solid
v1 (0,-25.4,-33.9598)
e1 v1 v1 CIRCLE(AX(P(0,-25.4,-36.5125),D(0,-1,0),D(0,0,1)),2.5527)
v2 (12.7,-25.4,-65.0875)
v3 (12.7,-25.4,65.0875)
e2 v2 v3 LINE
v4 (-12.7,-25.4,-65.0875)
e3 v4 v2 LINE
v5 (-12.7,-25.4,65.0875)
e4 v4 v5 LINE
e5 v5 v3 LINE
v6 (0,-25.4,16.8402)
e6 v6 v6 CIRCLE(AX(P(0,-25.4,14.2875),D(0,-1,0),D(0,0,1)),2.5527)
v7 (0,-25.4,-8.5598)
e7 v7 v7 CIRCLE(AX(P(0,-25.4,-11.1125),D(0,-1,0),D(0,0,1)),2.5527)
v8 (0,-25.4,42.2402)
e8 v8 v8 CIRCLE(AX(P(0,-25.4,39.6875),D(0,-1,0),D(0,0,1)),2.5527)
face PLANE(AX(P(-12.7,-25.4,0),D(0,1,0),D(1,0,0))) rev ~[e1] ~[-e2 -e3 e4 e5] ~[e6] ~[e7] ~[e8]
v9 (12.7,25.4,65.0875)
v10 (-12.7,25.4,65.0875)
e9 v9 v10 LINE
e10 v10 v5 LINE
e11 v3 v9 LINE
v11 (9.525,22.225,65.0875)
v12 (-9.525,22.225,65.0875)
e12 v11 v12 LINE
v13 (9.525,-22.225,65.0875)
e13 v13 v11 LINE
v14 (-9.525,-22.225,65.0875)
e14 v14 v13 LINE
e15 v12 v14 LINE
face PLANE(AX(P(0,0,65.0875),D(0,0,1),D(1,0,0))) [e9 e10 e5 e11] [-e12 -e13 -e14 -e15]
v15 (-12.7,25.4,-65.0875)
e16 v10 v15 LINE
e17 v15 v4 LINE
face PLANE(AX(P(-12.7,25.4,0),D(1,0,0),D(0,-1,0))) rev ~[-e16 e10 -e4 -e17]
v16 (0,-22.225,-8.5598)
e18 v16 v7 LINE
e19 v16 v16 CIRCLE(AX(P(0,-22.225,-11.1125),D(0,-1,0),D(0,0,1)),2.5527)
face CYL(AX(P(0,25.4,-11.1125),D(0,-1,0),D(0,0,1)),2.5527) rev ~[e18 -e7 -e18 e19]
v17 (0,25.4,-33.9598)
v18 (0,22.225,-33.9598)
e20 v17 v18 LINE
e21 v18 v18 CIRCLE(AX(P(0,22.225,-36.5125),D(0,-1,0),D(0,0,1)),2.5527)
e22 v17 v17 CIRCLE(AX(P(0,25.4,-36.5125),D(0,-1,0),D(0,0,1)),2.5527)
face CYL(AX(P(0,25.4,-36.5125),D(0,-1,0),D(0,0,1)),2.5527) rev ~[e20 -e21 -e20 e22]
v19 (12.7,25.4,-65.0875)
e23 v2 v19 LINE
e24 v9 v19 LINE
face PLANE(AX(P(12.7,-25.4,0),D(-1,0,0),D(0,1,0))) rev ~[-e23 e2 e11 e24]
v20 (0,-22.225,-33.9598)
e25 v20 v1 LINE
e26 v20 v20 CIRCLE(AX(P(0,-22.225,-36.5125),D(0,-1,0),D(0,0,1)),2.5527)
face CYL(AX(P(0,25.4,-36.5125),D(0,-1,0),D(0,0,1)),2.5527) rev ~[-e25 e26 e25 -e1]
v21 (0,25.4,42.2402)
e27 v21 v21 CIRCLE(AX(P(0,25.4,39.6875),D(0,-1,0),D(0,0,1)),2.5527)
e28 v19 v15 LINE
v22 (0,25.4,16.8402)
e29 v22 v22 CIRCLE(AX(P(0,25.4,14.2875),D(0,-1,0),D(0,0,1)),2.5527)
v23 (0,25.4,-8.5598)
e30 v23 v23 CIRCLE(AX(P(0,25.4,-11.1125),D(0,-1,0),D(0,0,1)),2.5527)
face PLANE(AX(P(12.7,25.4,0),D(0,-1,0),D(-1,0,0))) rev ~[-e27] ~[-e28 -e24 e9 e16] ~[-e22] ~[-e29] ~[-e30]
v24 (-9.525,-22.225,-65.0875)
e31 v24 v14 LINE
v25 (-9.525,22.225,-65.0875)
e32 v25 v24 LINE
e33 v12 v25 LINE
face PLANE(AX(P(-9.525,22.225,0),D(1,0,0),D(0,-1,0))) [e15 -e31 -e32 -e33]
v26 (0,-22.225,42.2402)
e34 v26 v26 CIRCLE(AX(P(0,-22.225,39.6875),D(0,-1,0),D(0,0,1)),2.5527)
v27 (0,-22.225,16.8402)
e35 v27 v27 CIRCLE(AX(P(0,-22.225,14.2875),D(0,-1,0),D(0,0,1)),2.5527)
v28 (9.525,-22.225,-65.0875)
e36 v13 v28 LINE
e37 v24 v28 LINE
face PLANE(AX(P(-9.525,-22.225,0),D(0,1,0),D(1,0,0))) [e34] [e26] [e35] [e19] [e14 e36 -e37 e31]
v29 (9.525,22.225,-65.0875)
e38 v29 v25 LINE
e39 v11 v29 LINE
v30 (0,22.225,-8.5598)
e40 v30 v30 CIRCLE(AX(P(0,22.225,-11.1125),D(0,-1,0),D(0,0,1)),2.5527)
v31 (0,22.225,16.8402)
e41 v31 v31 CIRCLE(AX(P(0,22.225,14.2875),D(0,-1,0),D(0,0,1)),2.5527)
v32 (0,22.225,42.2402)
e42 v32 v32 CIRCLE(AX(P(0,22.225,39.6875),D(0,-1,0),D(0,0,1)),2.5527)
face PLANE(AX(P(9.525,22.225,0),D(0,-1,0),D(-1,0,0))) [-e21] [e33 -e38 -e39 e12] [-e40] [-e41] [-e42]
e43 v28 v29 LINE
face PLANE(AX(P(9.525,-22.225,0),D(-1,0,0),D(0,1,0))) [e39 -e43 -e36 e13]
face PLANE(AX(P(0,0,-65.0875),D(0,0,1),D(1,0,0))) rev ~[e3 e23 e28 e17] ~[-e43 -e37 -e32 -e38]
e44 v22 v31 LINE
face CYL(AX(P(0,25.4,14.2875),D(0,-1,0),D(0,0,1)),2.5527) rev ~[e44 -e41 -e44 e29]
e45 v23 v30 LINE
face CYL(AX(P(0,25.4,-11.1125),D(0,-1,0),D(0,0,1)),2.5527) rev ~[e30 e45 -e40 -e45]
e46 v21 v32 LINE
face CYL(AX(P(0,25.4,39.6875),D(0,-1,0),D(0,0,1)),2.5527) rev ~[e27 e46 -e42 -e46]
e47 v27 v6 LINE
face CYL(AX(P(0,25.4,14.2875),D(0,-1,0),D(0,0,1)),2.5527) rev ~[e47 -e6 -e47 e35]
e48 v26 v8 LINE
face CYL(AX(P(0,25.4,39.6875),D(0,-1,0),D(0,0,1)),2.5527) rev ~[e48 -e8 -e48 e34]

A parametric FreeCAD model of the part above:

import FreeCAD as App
import Part
import Sketcher
from FreeCAD import Vector
Q = App.Units.Quantity

doc = App.newDocument("Part")
body = doc.addObject("PartDesign::Body", "Body")

sketch1 = doc.addObject("Sketcher::SketchObject", "Sketch")
body.addObject(sketch1)
sketch1.AttachmentSupport = (doc.XY_Plane, [""])
sketch1.MapMode = "FlatFace"
sketch1.addGeometry(Part.LineSegment(Vector(-13, 25, 0), Vector(-13, -25, 0)), False)
sketch1.addGeometry(Part.LineSegment(Vector(-13, -25, 0), Vector(13, -25, 0)), False)
sketch1.addGeometry(Part.LineSegment(Vector(13, -25, 0), Vector(13, 25, 0)), False)
sketch1.addGeometry(Part.LineSegment(Vector(13, 25, 0), Vector(-13, 25, 0)), False)
sketch1.addGeometry(Part.LineSegment(Vector(10, -22, 0), Vector(-10, -22, 0)), False)
sketch1.addGeometry(Part.LineSegment(Vector(-10, -22, 0), Vector(-10, 22, 0)), False)
sketch1.addGeometry(Part.LineSegment(Vector(-10, 22, 0), Vector(10, 22, 0)), False)
sketch1.addGeometry(Part.LineSegment(Vector(10, 22, 0), Vector(10, -22, 0)), False)
sketch1.addConstraint(Sketcher.Constraint("Coincident", 0, 2, 1, 1))
sketch1.addConstraint(Sketcher.Constraint("Coincident", 1, 2, 2, 1))
sketch1.addConstraint(Sketcher.Constraint("Coincident", 2, 2, 3, 1))
sketch1.addConstraint(Sketcher.Constraint("Coincident", 3, 2, 0, 1))
sketch1.addConstraint(Sketcher.Constraint("Coincident", 4, 2, 5, 1))
sketch1.addConstraint(Sketcher.Constraint("Coincident", 5, 2, 6, 1))
sketch1.addConstraint(Sketcher.Constraint("Coincident", 6, 2, 7, 1))
sketch1.addConstraint(Sketcher.Constraint("Coincident", 7, 2, 4, 1))
sketch1.addConstraint(Sketcher.Constraint("Vertical", 0))
sketch1.addConstraint(Sketcher.Constraint("Horizontal", 1))
sketch1.addConstraint(Sketcher.Constraint("Vertical", 2))
sketch1.addConstraint(Sketcher.Constraint("Horizontal", 3))
sketch1.addConstraint(Sketcher.Constraint("Horizontal", 4))
sketch1.addConstraint(Sketcher.Constraint("Vertical", 5))
sketch1.addConstraint(Sketcher.Constraint("Horizontal", 6))
sketch1.addConstraint(Sketcher.Constraint("Vertical", 7))
sketch1.addConstraint(Sketcher.Constraint("Symmetric", 0, 2, 2, 2, -1, 1))
sketch1.addConstraint(Sketcher.Constraint("Symmetric", 4, 2, 6, 2, -1, 1))
sketch1.addConstraint(Sketcher.Constraint("DistanceX", 1, 1, 1, 2, Q("1 in")))
sketch1.addConstraint(Sketcher.Constraint("DistanceY", 0, 2, 0, 1, Q("2 in")))
sketch1.addConstraint(Sketcher.Constraint("DistanceX", 0, 2, 4, 2, Q("0.125 in")))
sketch1.addConstraint(Sketcher.Constraint("DistanceY", 0, 2, 4, 2, Q("0.125 in")))
pad1 = doc.addObject("PartDesign::Pad", "Pad")
body.addObject(pad1)
pad1.Profile = sketch1
pad1.Length = Q("5.125 in")
pad1.Midplane = True

sketch2 = doc.addObject("Sketcher::SketchObject", "Sketch001")
body.addObject(sketch2)
sketch2.AttachmentSupport = (doc.XZ_Plane, [""])
sketch2.MapMode = "FlatFace"
sketch2.AttachmentOffset = App.Placement(Vector(0, 0, -1 * 25.4), App.Rotation())
sketch2.addGeometry(Part.Circle(Vector(0, 39.7, 0), Vector(0, 0, 1), 2.6), False)
sketch2.addGeometry(Part.Circle(Vector(0, 14.3, 0), Vector(0, 0, 1), 2.6), False)
sketch2.addGeometry(Part.Circle(Vector(0, -11.1, 0), Vector(0, 0, 1), 2.6), False)
sketch2.addGeometry(Part.Circle(Vector(0, -36.5, 0), Vector(0, 0, 1), 2.6), False)
sketch2.addConstraint(Sketcher.Constraint("Equal", 0, 1))
sketch2.addConstraint(Sketcher.Constraint("Equal", 1, 2))
sketch2.addConstraint(Sketcher.Constraint("Equal", 2, 3))
sketch2.addConstraint(Sketcher.Constraint("PointOnObject", 0, 3, -2))
sketch2.addConstraint(Sketcher.Constraint("PointOnObject", 1, 3, -2))
sketch2.addConstraint(Sketcher.Constraint("PointOnObject", 2, 3, -2))
sketch2.addConstraint(Sketcher.Constraint("PointOnObject", 3, 3, -2))
sketch2.addConstraint(Sketcher.Constraint("Diameter", 0, Q("0.201 in")))
sketch2.addConstraint(Sketcher.Constraint("DistanceY", 1, 3, 0, 3, Q("1 in")))
sketch2.addConstraint(Sketcher.Constraint("DistanceY", 2, 3, 1, 3, Q("1 in")))
sketch2.addConstraint(Sketcher.Constraint("DistanceY", 3, 3, 2, 3, Q("1 in")))
sketch2.addConstraint(Sketcher.Constraint("DistanceY", -1, 1, 0, 3, Q("1.5625 in")))
doc.recompute()
hole = doc.addObject("PartDesign::Hole", "Hole")
body.addObject(hole)
hole.Profile = sketch2
hole.ThreadType = "None"
hole.Diameter = Q("0.201 in")
hole.DepthType = "ThroughAll"
hole.Reversed = True

doc.recompute()
